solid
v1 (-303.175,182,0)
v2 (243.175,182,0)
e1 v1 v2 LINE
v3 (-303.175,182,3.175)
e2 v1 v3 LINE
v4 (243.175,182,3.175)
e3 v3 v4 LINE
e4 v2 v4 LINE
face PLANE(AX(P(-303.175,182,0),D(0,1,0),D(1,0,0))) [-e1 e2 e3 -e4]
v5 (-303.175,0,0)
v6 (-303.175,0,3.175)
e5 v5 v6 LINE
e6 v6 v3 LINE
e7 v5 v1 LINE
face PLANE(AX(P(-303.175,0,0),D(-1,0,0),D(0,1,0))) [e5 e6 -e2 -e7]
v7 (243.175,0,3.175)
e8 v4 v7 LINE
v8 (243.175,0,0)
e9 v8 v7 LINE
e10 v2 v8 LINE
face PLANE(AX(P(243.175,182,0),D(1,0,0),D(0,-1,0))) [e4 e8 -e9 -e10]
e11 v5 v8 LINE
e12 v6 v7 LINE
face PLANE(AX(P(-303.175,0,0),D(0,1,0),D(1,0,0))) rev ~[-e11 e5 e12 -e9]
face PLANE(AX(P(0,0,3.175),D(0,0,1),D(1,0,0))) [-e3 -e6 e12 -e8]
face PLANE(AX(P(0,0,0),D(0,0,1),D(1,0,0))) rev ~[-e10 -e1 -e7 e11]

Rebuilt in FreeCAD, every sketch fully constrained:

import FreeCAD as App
import Part
import Sketcher
from FreeCAD import Vector

doc = App.newDocument("Part")
body = doc.addObject("PartDesign::Body", "Body")

sketch1 = doc.addObject("Sketcher::SketchObject", "Sketch")
body.addObject(sketch1)
sketch1.AttachmentSupport = (doc.XY_Plane, [""])
sketch1.MapMode = "FlatFace"
sketch1.addGeometry([
    Part.LineSegment(Vector(243.175, 182, 0), Vector(-303.175, 182, 0)),
    Part.LineSegment(Vector(-303.175, 182, 0), Vector(-303.175, 0, 0)),
    Part.LineSegment(Vector(-303.175, 0, 0), Vector(243.175, 0, 0)),
    Part.LineSegment(Vector(243.175, 0, 0), Vector(243.175, 182, 0)),
], False)
sketch1.addConstraint([
    Sketcher.Constraint("Coincident", 0, 2, 1, 1),
    Sketcher.Constraint("Coincident", 1, 2, 2, 1),
    Sketcher.Constraint("Coincident", 2, 2, 3, 1),
    Sketcher.Constraint("Coincident", 3, 2, 0, 1),
    Sketcher.Constraint("Horizontal", 0),
    Sketcher.Constraint("Vertical", 1),
    Sketcher.Constraint("Horizontal", 2),
    Sketcher.Constraint("Vertical", 3),
    Sketcher.Constraint("PointOnObject", 1, 2, -1),
    Sketcher.Constraint("DistanceY", 1, 2, 1, 1, 182.0),
    Sketcher.Constraint("DistanceX", 0, 2, -1, 1, 303.175),
    Sketcher.Constraint("DistanceX", -1, 1, 2, 2, 243.175),
])
pad1 = doc.addObject("PartDesign::Pad", "Pad")
body.addObject(pad1)
pad1.Profile = sketch1
pad1.Length = 3.175

doc.recompute()
